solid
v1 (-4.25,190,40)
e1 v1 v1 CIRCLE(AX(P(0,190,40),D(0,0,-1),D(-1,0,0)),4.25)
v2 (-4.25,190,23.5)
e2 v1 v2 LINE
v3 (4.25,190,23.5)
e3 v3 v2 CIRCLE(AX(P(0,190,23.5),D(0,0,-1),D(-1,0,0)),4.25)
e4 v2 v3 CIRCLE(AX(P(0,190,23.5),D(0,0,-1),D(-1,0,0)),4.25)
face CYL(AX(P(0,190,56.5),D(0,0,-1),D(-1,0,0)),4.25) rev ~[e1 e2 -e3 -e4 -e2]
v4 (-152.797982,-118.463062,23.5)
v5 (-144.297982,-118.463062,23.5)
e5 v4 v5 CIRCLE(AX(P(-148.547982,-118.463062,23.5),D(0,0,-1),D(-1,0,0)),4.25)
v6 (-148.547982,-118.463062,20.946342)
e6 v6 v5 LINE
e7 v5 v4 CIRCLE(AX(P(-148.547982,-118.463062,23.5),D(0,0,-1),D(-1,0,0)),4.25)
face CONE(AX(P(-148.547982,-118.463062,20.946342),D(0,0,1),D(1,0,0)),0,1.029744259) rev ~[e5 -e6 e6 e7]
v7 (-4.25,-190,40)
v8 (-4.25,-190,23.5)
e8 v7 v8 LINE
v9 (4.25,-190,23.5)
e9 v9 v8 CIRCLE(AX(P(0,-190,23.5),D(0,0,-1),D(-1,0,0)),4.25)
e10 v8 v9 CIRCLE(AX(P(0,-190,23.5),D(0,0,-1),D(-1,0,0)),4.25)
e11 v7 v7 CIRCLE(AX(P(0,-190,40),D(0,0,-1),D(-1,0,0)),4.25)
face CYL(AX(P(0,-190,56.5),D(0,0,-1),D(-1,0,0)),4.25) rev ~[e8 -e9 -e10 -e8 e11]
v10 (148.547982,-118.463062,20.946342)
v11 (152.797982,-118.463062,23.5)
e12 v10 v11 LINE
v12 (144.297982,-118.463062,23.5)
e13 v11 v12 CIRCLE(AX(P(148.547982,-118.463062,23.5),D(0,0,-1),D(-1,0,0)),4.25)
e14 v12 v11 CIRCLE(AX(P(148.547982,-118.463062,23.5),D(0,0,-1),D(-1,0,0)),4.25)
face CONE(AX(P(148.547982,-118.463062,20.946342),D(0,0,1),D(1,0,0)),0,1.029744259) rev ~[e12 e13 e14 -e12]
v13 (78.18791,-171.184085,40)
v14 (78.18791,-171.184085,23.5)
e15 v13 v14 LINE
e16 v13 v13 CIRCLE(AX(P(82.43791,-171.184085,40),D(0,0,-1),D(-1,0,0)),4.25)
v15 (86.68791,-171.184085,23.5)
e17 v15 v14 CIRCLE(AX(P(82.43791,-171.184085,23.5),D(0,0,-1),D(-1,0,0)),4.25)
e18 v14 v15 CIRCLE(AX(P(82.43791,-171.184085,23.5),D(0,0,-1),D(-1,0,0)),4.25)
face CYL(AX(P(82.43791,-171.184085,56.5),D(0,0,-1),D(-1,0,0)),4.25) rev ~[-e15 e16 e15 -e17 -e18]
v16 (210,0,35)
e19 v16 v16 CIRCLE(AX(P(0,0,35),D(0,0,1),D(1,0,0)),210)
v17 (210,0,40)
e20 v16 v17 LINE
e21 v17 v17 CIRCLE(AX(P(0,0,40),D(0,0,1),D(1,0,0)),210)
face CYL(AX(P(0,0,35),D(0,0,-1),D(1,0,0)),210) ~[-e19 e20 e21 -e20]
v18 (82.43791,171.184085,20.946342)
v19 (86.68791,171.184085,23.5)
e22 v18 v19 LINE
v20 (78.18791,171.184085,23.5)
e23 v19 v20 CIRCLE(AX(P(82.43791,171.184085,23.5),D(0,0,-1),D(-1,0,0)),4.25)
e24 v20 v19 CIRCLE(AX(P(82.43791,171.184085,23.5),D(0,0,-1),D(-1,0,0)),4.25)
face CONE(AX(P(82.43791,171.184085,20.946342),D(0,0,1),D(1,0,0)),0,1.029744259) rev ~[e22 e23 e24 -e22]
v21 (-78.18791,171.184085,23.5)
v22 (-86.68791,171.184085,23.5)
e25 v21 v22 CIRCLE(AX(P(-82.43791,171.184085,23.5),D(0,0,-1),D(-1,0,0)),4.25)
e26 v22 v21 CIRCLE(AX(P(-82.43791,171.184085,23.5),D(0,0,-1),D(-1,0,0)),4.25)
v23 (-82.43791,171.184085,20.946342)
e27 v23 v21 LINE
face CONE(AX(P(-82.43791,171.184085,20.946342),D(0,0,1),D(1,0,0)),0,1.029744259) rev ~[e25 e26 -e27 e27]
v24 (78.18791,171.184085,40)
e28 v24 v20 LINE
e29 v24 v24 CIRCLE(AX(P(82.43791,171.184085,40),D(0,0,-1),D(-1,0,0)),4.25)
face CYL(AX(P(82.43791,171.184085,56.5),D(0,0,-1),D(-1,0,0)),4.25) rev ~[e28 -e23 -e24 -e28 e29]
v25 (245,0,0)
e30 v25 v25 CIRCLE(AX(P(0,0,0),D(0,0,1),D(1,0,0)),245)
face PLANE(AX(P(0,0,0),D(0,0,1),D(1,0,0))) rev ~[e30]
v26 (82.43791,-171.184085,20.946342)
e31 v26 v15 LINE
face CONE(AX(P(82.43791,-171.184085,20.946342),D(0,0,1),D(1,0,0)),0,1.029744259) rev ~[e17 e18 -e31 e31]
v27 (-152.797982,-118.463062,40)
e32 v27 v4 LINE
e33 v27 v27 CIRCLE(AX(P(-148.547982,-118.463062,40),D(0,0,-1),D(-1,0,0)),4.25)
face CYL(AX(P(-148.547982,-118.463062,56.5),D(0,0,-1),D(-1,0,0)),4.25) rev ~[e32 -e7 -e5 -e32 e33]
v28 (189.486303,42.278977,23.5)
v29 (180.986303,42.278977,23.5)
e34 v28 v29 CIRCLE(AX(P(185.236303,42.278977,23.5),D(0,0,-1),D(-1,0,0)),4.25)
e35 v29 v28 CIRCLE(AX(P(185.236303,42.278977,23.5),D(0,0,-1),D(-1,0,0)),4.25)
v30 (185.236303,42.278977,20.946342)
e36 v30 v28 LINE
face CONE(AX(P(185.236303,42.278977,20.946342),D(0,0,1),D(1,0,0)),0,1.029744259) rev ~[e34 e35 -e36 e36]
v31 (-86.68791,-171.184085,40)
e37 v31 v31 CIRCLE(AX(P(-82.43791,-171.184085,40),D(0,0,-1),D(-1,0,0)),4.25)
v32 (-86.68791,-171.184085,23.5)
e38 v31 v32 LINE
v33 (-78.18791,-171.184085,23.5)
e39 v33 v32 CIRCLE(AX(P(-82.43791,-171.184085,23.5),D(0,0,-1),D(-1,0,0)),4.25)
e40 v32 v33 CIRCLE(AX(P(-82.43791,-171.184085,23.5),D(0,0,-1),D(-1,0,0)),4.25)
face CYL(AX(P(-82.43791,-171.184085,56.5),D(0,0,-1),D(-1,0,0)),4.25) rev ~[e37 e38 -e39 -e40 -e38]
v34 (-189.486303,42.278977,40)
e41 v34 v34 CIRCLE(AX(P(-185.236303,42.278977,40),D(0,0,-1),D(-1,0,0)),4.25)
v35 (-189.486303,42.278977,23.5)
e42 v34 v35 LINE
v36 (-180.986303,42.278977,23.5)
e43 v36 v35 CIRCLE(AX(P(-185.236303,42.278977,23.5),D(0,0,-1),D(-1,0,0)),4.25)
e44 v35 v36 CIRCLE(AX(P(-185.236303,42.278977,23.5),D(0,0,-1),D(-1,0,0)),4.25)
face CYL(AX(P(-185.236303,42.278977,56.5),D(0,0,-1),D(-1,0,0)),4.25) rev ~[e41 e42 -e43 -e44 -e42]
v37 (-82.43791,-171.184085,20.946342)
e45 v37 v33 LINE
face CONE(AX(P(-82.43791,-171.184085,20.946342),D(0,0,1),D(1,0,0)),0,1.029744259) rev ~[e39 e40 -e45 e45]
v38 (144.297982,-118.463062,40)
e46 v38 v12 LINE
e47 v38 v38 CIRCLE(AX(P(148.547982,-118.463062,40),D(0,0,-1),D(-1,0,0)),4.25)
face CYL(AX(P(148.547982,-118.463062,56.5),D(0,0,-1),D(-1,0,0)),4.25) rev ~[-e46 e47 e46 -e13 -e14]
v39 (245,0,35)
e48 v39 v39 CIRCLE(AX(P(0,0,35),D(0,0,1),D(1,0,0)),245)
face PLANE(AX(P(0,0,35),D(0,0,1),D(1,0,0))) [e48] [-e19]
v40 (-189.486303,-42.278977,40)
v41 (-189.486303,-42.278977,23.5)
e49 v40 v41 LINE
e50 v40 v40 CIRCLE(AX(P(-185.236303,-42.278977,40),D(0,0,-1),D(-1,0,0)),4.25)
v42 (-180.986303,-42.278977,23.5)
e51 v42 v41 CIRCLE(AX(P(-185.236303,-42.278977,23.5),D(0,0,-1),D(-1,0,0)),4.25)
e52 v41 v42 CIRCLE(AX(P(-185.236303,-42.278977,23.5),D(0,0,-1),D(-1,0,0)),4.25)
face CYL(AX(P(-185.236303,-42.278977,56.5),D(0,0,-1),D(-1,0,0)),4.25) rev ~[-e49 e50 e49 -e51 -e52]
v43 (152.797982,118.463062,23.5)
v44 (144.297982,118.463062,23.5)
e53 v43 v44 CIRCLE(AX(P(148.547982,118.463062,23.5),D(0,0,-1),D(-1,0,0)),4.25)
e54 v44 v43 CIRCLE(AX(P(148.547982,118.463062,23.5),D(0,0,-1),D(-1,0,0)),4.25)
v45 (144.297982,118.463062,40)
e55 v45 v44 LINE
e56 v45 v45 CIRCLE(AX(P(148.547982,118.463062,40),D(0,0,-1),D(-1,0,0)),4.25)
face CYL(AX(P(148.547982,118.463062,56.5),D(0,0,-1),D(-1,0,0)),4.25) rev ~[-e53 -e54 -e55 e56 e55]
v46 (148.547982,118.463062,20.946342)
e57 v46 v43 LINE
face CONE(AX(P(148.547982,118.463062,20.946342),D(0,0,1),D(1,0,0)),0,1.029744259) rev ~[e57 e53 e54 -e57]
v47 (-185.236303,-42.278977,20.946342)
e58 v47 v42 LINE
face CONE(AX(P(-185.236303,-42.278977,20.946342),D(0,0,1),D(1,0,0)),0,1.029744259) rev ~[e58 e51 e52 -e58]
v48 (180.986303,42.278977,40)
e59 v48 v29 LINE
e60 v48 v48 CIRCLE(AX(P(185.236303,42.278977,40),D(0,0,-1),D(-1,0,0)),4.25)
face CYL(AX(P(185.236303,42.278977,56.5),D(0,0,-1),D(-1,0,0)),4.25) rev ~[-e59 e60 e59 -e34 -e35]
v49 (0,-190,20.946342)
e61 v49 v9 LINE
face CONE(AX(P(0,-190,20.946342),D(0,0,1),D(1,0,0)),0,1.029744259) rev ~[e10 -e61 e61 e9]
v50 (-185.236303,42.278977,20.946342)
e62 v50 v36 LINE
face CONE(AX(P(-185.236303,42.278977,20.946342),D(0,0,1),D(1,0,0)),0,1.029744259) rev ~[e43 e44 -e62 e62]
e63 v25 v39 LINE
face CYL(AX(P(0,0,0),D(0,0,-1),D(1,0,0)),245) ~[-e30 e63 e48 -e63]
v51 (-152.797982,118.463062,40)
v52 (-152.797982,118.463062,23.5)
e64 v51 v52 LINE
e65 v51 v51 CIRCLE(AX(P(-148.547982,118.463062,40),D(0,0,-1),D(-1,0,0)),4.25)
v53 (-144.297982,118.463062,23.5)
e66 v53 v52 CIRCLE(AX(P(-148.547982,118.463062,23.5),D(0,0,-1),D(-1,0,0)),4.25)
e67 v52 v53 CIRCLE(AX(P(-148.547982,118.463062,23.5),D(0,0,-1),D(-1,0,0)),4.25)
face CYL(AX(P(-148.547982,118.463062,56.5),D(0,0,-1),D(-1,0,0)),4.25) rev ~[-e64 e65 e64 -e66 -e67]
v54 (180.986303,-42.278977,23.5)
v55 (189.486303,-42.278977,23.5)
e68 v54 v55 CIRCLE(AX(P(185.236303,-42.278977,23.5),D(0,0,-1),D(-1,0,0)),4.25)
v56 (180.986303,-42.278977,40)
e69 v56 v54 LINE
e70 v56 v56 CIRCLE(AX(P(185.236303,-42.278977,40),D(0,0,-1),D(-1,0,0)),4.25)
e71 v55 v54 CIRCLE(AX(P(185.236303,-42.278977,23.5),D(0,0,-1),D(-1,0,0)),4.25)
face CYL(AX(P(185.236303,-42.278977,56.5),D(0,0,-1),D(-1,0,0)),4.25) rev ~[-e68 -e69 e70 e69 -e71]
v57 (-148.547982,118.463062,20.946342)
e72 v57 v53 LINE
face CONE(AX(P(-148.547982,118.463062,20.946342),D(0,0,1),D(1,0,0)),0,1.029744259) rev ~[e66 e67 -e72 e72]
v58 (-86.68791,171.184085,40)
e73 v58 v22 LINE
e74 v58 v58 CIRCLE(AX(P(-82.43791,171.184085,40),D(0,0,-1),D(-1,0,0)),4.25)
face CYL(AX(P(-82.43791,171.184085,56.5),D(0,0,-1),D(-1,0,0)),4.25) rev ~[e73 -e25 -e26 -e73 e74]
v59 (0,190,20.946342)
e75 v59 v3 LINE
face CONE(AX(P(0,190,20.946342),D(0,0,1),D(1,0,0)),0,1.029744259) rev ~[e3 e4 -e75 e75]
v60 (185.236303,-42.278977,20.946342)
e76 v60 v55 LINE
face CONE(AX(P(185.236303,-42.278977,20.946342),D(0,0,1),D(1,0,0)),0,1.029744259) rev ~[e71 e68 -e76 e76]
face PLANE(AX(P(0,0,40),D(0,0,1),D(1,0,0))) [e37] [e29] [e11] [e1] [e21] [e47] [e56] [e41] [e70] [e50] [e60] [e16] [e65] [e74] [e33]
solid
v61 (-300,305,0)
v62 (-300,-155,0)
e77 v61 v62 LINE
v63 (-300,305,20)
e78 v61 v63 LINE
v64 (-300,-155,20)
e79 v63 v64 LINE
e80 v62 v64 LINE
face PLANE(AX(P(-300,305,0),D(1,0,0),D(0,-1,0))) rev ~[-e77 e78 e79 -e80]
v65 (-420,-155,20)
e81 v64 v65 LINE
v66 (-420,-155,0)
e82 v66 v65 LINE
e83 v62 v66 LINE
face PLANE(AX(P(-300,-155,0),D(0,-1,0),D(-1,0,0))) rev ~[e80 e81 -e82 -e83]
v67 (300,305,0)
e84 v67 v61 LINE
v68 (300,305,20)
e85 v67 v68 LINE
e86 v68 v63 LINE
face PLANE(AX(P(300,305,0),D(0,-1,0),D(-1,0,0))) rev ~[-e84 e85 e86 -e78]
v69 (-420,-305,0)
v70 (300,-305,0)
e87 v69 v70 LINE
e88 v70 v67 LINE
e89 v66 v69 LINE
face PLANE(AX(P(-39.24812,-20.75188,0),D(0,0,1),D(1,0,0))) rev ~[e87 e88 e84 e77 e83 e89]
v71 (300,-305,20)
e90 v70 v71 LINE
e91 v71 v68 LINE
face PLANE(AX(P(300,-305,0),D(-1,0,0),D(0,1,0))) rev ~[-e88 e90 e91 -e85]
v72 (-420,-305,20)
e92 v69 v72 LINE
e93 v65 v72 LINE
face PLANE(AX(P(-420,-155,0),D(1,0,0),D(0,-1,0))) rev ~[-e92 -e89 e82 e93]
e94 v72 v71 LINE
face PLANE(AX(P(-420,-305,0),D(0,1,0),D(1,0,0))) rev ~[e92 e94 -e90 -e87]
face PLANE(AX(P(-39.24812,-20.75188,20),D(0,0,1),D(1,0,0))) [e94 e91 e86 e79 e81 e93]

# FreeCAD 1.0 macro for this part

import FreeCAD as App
import Part
import Sketcher

V = App.Vector


def add_polygon(sketch, points):
    """Adds a closed chain of lines whose ends are joined by coincident constraints."""
    first, n = sketch.GeometryCount, len(points)
    for a, b in zip(points, points[1:] + points[:1]):
        sketch.addGeometry(Part.LineSegment(App.Vector(*a, 0), App.Vector(*b, 0)), False)
    for i in range(n):
        sketch.addConstraint(Sketcher.Constraint("Coincident", first + i, 2, first + (i + 1) % n, 1))

doc = App.newDocument("Part")
body = doc.addObject("PartDesign::Body", "Body")

# Sketch on XY plane
sketch1 = body.newObject("Sketcher::SketchObject", "Sketch")
sketch1.AttachmentSupport = (doc.getObject("XY_Plane"), [""])
sketch1.MapMode = "FlatFace"
add_polygon(sketch1, [(300, -305), (300, 305), (-300, 305), (-300, -155), (-420, -155), (-420, -305)])  # lines 0-5
sketch1.addConstraint([
    Sketcher.Constraint("Vertical", 0),
    Sketcher.Constraint("Horizontal", 1),
    Sketcher.Constraint("Vertical", 2),
    Sketcher.Constraint("Horizontal", 3),
    Sketcher.Constraint("Vertical", 4),
    Sketcher.Constraint("Horizontal", 5),
    Sketcher.Constraint("Symmetric", 1, 2, 5, 2, -1, 1),
    Sketcher.Constraint("DistanceX", 1, 2, 1, 1, 600.0),
    Sketcher.Constraint("DistanceX", 3, 2, 3, 1, 120.0),
    Sketcher.Constraint("DistanceY", 0, 1, 0, 2, 610.0),
    Sketcher.Constraint("DistanceY", 2, 2, 2, 1, 460.0),
])
pad1 = body.newObject("PartDesign::Pad", "Pad")
pad1.Profile = sketch1
pad1.Length = 20
body2 = doc.addObject("PartDesign::Body", "Body001")

# Sketch on XY plane
sketch2 = body2.newObject("Sketcher::SketchObject", "Sketch001")
sketch2.AttachmentSupport = (doc.getObject("XY_Plane001"), [""])
sketch2.MapMode = "FlatFace"
sketch2.addGeometry(Part.Circle(V(0, 0, 0), V(0, 0, 1), 245), False)
sketch2.addConstraint([
    Sketcher.Constraint("Coincident", 0, 3, -1, 1),
    Sketcher.Constraint("Diameter", 0, 490.0),
])
pad2 = body2.newObject("PartDesign::Pad", "Pad001")
pad2.Profile = sketch2
pad2.Length = 35

# Sketch on XY plane
sketch3 = body2.newObject("Sketcher::SketchObject", "Sketch002")
sketch3.AttachmentSupport = (doc.getObject("XY_Plane001"), [""])
sketch3.MapMode = "FlatFace"
sketch3.AttachmentOffset = App.Placement(V(0, 0, 35), App.Rotation())
sketch3.addGeometry(Part.Circle(V(0, 0, 0), V(0, 0, 1), 210), False)
sketch3.addConstraint([
    Sketcher.Constraint("Coincident", 0, 3, -1, 1),
    Sketcher.Constraint("Diameter", 0, 420.0),
])
pad3 = body2.newObject("PartDesign::Pad", "Pad002")
pad3.Profile = sketch3
pad3.Length = 5

# Sketch on XY plane
sketch4 = body2.newObject("Sketcher::SketchObject", "Sketch003")
sketch4.AttachmentSupport = (doc.getObject("XY_Plane001"), [""])
sketch4.MapMode = "FlatFace"
sketch4.AttachmentOffset = App.Placement(V(0, 0, 40), App.Rotation())
sketch4.addGeometry([
    Part.Circle(V(0, 190, 0), V(0, 0, 1), 4.25),  # 0
    Part.Circle(V(82.43791, 171.184085, 0), V(0, 0, 1), 4.25),  # 1
    Part.Circle(V(148.547982, 118.463062, 0), V(0, 0, 1), 4.25),  # 2
    Part.Circle(V(185.236303, 42.278977, 0), V(0, 0, 1), 4.25),  # 3
    Part.Circle(V(185.236303, -42.278977, 0), V(0, 0, 1), 4.25),  # 4
    Part.Circle(V(148.547982, -118.463062, 0), V(0, 0, 1), 4.25),  # 5
    Part.Circle(V(82.43791, -171.184085, 0), V(0, 0, 1), 4.25),  # 6
    Part.Circle(V(0, -190, 0), V(0, 0, 1), 4.25),  # 7
    Part.Circle(V(-82.43791, -171.184085, 0), V(0, 0, 1), 4.25),  # 8
    Part.Circle(V(-148.547982, -118.463062, 0), V(0, 0, 1), 4.25),  # 9
    Part.Circle(V(-185.236303, -42.278977, 0), V(0, 0, 1), 4.25),  # 10
    Part.Circle(V(-185.236303, 42.278977, 0), V(0, 0, 1), 4.25),  # 11
    Part.Circle(V(-148.547982, 118.463062, 0), V(0, 0, 1), 4.25),  # 12
    Part.Circle(V(-82.43791, 171.184085, 0), V(0, 0, 1), 4.25),  # 13
], False)
sketch4.addConstraint([
    Sketcher.Constraint("Equal", 0, 1),
    Sketcher.Constraint("Equal", 1, 2),
    Sketcher.Constraint("Equal", 2, 3),
    Sketcher.Constraint("Equal", 3, 4),
    Sketcher.Constraint("Equal", 4, 5),
    Sketcher.Constraint("Equal", 5, 6),
    Sketcher.Constraint("Equal", 6, 7),
    Sketcher.Constraint("Equal", 7, 8),
    Sketcher.Constraint("Equal", 8, 9),
    Sketcher.Constraint("Equal", 9, 10),
    Sketcher.Constraint("Equal", 10, 11),
    Sketcher.Constraint("Equal", 11, 12),
    Sketcher.Constraint("Equal", 12, 13),
    Sketcher.Constraint("Symmetric", 0, 3, 7, 3, -1, 1),
    Sketcher.Constraint("Symmetric", 1, 3, 8, 3, -1, 1),
    Sketcher.Constraint("Symmetric", 2, 3, 9, 3, -1, 1),
    Sketcher.Constraint("Symmetric", 3, 3, 10, 3, -1, 1),
    Sketcher.Constraint("Symmetric", 4, 3, 11, 3, -1, 1),
    Sketcher.Constraint("Symmetric", 5, 3, 12, 3, -1, 1),
    Sketcher.Constraint("Symmetric", 6, 3, 13, 3, -1, 1),
    Sketcher.Constraint("Symmetric", 6, 3, 8, 3, -2),
    Sketcher.Constraint("Symmetric", 5, 3, 9, 3, -2),
    Sketcher.Constraint("Symmetric", 4, 3, 10, 3, -2),
    Sketcher.Constraint("PointOnObject", 0, 3, -2),
    Sketcher.Constraint("Diameter", 0, 8.5),
    Sketcher.Constraint("DistanceY", -1, 1, 0, 3, 190.0),
    Sketcher.Constraint("DistanceX", -1, 1, 1, 3, 82.43791),
    Sketcher.Constraint("DistanceX", -1, 1, 2, 3, 148.547982),
    Sketcher.Constraint("DistanceX", 2, 3, 3, 3, 36.688322),
    Sketcher.Constraint("DistanceY", 4, 3, 2, 3, 160.74204),
    Sketcher.Constraint("DistanceY", 6, 3, 1, 3, 342.36817),
    Sketcher.Constraint("DistanceY", -1, 1, 2, 3, 118.463062),
])
doc.recompute()
hole = body2.newObject("PartDesign::Hole", "Hole")
hole.Profile = sketch4
hole.ThreadType = "None"
hole.Diameter = 8.5
hole.DepthType = "Dimension"
hole.Depth = 16.5
hole.DrillPoint = "Angled"
hole.DrillPointAngle = 118

doc.recompute()
